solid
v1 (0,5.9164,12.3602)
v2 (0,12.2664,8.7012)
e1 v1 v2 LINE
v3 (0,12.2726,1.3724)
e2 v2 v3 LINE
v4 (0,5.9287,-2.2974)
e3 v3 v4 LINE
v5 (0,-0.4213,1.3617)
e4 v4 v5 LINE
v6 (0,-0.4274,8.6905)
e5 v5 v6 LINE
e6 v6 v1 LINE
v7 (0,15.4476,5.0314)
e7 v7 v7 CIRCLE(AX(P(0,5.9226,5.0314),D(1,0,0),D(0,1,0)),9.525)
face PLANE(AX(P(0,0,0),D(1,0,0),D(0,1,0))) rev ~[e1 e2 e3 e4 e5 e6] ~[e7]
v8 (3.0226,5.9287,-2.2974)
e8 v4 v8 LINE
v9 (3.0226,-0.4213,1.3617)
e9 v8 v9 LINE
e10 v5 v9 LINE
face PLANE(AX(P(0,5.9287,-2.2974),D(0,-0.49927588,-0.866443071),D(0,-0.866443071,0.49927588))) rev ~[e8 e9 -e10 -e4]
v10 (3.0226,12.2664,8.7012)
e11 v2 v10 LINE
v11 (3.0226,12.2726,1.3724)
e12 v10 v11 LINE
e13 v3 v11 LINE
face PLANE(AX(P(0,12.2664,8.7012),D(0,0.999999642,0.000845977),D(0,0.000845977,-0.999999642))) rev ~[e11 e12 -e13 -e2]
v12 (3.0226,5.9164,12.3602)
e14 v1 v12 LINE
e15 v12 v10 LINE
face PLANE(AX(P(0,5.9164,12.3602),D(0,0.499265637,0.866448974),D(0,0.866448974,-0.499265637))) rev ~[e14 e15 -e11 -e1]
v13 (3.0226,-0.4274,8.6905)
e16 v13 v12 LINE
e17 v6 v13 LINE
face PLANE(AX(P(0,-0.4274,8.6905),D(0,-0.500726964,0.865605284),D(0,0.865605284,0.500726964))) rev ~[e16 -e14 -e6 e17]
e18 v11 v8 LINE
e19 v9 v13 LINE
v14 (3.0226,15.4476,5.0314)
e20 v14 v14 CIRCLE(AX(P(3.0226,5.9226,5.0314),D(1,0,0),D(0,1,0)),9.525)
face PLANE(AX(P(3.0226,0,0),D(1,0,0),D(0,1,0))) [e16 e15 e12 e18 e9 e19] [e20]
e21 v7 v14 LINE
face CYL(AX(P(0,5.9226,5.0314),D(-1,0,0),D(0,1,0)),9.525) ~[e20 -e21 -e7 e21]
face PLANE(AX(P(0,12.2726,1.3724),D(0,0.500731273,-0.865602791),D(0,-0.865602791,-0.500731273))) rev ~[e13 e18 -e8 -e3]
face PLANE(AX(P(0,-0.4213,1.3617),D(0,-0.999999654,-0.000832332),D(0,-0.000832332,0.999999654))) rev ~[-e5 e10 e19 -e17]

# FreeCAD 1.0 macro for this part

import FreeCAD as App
import Part
import Sketcher

V = App.Vector
Q = App.Units.Quantity


def add_polygon(sketch, points):
    """Adds a closed chain of lines whose ends are joined by coincident constraints."""
    first, n = sketch.GeometryCount, len(points)
    for a, b in zip(points, points[1:] + points[:1]):
        sketch.addGeometry(Part.LineSegment(App.Vector(*a, 0), App.Vector(*b, 0)), False)
    for i in range(n):
        sketch.addConstraint(Sketcher.Constraint("Coincident", first + i, 2, first + (i + 1) % n, 1))

doc = App.newDocument("Part")
params = doc.addObject("Spreadsheet::Sheet", "Params")
for row, (alias, value) in enumerate([
    ("sketch1_diameter", "0.75 in"),
    ("pad1_length", "0.119 in"),
], start=1):
    params.set(f"A{row}", alias)
    params.set(f"B{row}", "=" + value)
    params.setAlias(f"B{row}", alias)

body = doc.addObject("PartDesign::Body", "Body")

sketch1 = doc.addObject("Sketcher::SketchObject", "Sketch")
body.addObject(sketch1)
sketch1.AttachmentSupport = (doc.YZ_Plane, [""])
sketch1.MapMode = "FlatFace"
sketch1.addGeometry(Part.Circle(V(6, 5, 0), V(0, 0, 1), 10), False)
add_polygon(sketch1, [(12, 9), (12, 1), (6, -2), (0, 1), (0, 9), (6, 12)])
sketch1.addConstraint([
    Sketcher.Constraint("Parallel", 1, 4),
    Sketcher.Constraint("Parallel", 2, 5),
    Sketcher.Constraint("Parallel", 3, 6),
    Sketcher.Constraint("Equal", 1, 2),
    Sketcher.Constraint("Equal", 2, 3),
    Sketcher.Constraint("Equal", 3, 4),
    Sketcher.Constraint("Diameter", 0, Q("0.75 in")),
    Sketcher.Constraint("DistanceX", 4, 2, 1, 2, Q("0.5 in")),
    Sketcher.Constraint("DistanceX", 0, 3, 1, 2, Q("0.25 in")),
    Sketcher.Constraint("DistanceX", 3, 2, 2, 2, Q("0.25 in")),
    Sketcher.Constraint("DistanceY", 3, 2, 5, 2, Q("0.433 in")),
    Sketcher.Constraint("DistanceY", -1, 1, 3, 2, Q("0.0536 in")),
    Sketcher.Constraint("DistanceY", 2, 2, 4, 2, Q("0.4326 in")),
    Sketcher.Constraint("DistanceX", -1, 1, 0, 3, 5.9226),
    Sketcher.Constraint("DistanceY", -1, 1, 0, 3, 5.0314),
])
sketch1.setExpression("Constraints[12]", "Params.sketch1_diameter")
pad1 = doc.addObject("PartDesign::Pad", "Pad")
body.addObject(pad1)
pad1.Profile = sketch1
pad1.setExpression("Length", "Params.pad1_length")

doc.recompute()
